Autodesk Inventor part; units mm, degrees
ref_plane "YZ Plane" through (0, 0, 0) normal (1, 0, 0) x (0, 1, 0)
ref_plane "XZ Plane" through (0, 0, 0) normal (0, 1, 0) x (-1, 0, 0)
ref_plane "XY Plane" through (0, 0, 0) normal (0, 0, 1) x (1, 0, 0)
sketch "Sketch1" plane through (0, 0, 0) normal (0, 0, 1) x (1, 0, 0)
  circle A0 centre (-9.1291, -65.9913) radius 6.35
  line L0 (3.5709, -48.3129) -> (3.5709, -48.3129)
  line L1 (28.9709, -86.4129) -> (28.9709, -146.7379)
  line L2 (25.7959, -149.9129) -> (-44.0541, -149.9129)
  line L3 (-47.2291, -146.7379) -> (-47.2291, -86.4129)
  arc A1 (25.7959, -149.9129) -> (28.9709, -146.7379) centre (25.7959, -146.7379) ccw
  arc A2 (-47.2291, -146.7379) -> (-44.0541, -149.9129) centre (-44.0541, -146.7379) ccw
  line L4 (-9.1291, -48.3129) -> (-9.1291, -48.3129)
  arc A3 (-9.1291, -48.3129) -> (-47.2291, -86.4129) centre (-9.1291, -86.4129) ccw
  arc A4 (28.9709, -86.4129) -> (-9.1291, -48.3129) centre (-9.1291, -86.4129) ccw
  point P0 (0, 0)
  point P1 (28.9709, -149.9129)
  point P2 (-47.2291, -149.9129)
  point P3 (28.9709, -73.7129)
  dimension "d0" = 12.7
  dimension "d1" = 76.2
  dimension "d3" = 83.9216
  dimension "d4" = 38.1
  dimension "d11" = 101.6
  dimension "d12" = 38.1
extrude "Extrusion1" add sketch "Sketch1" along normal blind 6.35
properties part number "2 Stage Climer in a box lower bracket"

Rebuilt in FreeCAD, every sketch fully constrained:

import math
import FreeCAD as App
import Part
import Sketcher
from FreeCAD import Vector
Q = App.Units.Quantity

doc = App.newDocument("Part")
body = doc.addObject("PartDesign::Body", "Body")

# Sketch on XY plane
sketch1 = doc.addObject("Sketcher::SketchObject", "Sketch")
body.addObject(sketch1)
sketch1.AttachmentSupport = (doc.XY_Plane, [""])
sketch1.MapMode = "FlatFace"
sketch1.addGeometry([
    Part.LineSegment(Vector(29, -146.7, 0), Vector(29, -86.4, 0)),  # 0
    Part.ArcOfCircle(Part.Circle(Vector(-9.1, -86.4, 0), Vector(0, 0, 1), 38.1), math.radians(0), math.radians(180)),  # 1
    Part.LineSegment(Vector(-47.2, -86.4, 0), Vector(-47.2, -146.7, 0)),  # 2
    Part.ArcOfCircle(Part.Circle(Vector(-44.1, -146.7, 0), Vector(0, 0, 1), 3.2), math.radians(180), math.radians(270)),  # 3
    Part.LineSegment(Vector(-44.1, -149.9, 0), Vector(25.8, -149.9, 0)),  # 4
    Part.ArcOfCircle(Part.Circle(Vector(25.8, -146.7, 0), Vector(0, 0, 1), 3.2), math.radians(-90), math.radians(0)),  # 5
    Part.Circle(Vector(-9.1, -66, 0), Vector(0, 0, 1), 6.3),  # 6
], False)
sketch1.addConstraint([
    Sketcher.Constraint("Tangent", 0, 2, 1, 1),
    Sketcher.Constraint("Tangent", 1, 2, 2, 1),
    Sketcher.Constraint("Tangent", 2, 2, 3, 1),
    Sketcher.Constraint("Tangent", 3, 2, 4, 1),
    Sketcher.Constraint("Tangent", 4, 2, 5, 1),
    Sketcher.Constraint("Tangent", 5, 2, 0, 1),
    Sketcher.Constraint("Vertical", 0),
    Sketcher.Constraint("Vertical", 2),
    Sketcher.Constraint("Horizontal", 4),
    Sketcher.Constraint("Equal", 3, 5),
    Sketcher.Constraint("Vertical", 1, 3, 6, 3),
    Sketcher.Constraint("Diameter", 6, Q("0.5 in")),
    Sketcher.Constraint("Radius", 1, Q("1.5 in")),
    Sketcher.Constraint("Radius", 3, Q("0.125 in")),
    Sketcher.Constraint("DistanceY", 3, 2, 1, 2, Q("2.5 in")),
    Sketcher.Constraint("DistanceY", 1, 3, 6, 3, Q("0.804 in")),
    Sketcher.Constraint("DistanceX", 1, 3, -1, 1, Q("0.3594094 in")),
    Sketcher.Constraint("DistanceY", 1, 3, -1, 1, Q("86.413 mm")),
])
pad1 = doc.addObject("PartDesign::Pad", "Pad")
body.addObject(pad1)
pad1.Profile = sketch1
pad1.Length = Q("0.25 in")

doc.recompute()
